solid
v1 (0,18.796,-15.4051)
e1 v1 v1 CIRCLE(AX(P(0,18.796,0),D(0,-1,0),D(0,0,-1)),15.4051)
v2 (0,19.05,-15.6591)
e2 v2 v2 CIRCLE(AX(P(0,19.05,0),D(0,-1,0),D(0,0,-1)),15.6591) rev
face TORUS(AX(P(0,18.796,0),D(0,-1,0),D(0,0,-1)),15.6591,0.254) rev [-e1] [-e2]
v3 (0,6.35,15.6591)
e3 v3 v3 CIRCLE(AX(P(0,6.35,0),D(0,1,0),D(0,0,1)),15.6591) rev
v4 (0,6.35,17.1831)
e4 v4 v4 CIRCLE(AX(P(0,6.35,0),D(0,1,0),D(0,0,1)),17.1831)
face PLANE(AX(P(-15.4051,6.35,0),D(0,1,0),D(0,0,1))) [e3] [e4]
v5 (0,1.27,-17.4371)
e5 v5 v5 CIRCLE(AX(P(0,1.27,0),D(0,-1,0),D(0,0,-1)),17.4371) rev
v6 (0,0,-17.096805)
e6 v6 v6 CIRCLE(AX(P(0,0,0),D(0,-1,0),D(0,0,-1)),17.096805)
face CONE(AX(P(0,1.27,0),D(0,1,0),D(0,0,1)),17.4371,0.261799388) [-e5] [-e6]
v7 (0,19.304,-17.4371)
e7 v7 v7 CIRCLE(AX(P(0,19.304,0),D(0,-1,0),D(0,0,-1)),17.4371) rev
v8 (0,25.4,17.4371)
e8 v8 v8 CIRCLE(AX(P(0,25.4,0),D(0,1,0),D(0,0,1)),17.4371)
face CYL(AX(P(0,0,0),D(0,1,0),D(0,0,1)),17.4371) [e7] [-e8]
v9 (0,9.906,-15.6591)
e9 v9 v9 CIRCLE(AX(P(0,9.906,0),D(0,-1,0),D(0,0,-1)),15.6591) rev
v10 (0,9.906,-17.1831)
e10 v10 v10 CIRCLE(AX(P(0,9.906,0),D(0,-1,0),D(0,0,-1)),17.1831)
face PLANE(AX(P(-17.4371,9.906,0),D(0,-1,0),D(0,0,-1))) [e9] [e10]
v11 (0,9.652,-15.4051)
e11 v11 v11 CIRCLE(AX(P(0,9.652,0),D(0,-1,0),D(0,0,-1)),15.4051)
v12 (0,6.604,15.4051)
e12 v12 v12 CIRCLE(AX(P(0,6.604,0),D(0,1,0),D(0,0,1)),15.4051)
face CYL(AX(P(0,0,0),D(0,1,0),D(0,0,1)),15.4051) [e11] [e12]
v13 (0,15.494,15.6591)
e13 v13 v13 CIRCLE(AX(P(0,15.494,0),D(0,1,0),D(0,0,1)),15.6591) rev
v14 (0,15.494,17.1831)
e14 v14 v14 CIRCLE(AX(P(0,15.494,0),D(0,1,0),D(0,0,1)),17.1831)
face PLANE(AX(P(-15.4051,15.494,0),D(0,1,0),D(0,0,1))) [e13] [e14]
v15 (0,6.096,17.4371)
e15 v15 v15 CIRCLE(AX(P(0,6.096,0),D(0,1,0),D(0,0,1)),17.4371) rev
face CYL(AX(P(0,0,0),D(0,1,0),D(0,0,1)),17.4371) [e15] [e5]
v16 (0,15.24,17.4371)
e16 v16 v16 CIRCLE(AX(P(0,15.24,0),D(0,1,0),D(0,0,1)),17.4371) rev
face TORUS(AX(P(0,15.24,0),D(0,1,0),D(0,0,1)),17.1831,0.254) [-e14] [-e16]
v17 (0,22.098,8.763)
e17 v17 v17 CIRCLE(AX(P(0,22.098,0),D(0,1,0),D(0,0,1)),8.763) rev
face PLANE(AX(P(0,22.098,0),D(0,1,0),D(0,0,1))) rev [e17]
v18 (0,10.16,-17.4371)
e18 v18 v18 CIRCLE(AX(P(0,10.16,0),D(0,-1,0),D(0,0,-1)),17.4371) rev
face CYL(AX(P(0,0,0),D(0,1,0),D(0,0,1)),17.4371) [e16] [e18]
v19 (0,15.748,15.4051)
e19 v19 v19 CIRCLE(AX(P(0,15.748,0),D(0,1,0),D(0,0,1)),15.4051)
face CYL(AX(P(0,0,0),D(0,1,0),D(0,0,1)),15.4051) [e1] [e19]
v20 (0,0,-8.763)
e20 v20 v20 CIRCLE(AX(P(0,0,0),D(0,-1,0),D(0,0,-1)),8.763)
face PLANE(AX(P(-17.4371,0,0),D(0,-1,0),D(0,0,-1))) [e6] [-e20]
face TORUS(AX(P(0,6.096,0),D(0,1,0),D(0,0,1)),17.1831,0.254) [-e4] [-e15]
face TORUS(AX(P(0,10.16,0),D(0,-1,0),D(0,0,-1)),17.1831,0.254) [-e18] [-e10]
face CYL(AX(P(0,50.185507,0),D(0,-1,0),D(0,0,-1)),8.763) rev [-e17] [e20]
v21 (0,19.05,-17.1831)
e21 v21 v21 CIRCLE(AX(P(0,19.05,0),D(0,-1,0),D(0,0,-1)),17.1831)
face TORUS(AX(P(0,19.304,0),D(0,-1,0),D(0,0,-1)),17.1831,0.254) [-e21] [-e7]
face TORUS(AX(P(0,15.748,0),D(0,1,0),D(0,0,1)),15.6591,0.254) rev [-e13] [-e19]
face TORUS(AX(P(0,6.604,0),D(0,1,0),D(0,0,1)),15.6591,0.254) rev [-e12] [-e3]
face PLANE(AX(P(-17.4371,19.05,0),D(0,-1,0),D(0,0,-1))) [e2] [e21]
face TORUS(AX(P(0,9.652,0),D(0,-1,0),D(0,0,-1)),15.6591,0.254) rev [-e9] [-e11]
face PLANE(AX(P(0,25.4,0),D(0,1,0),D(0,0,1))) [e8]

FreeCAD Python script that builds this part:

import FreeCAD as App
import Part
import Sketcher
Q = App.Units.Quantity


def edges_at(feature, points):
    """Names of the edges that pass closest to the given points."""
    edges = feature.Shape.Edges
    near = lambda p: min(range(len(edges)), key=lambda i: edges[i].distToShape(Part.Vertex(*p))[0])
    return sorted({f"Edge{near(p) + 1}" for p in points})


def add_polygon(sketch, points):
    """Adds a closed chain of lines whose ends are joined by coincident constraints."""
    first, n = sketch.GeometryCount, len(points)
    for a, b in zip(points, points[1:] + points[:1]):
        sketch.addGeometry(Part.LineSegment(App.Vector(*a, 0), App.Vector(*b, 0)), False)
    for i in range(n):
        sketch.addConstraint(Sketcher.Constraint("Coincident", first + i, 2, first + (i + 1) % n, 1))

doc = App.newDocument("Part")
body = doc.addObject("PartDesign::Body", "Body")

# Sketch on XY plane
sketch1 = doc.addObject("Sketcher::SketchObject", "Sketch")
body.addObject(sketch1)
sketch1.AttachmentSupport = (doc.XY_Plane, [""])
sketch1.MapMode = "FlatFace"
add_polygon(sketch1, [(0, 25.4), (-17.4, 25.4), (-17.4, 19.1), (-15.4, 19.1), (-15.4, 15.5), (-17.4, 15.5), (-17.4, 9.9), (-15.4, 9.9), (-15.4, 6.3), (-17.4, 6.3), (-17.4, 0), (0, 0)])  # lines 0-11
sketch1.addConstraint([
    Sketcher.Constraint("Horizontal", 0),
    Sketcher.Constraint("Vertical", 1),
    Sketcher.Constraint("Horizontal", 2),
    Sketcher.Constraint("Vertical", 3),
    Sketcher.Constraint("Horizontal", 4),
    Sketcher.Constraint("Vertical", 5),
    Sketcher.Constraint("Horizontal", 6),
    Sketcher.Constraint("Vertical", 7),
    Sketcher.Constraint("Horizontal", 8),
    Sketcher.Constraint("Vertical", 9),
    Sketcher.Constraint("Horizontal", 10),
    Sketcher.Constraint("Vertical", 11),
    Sketcher.Constraint("Coincident", 10, 2, -1, 1),
    Sketcher.Constraint("Vertical", 1, 2, 4, 2),
    Sketcher.Constraint("Vertical", 3, 2, 6, 2),
    Sketcher.Constraint("Vertical", 5, 2, 8, 2),
    Sketcher.Constraint("Equal", 3, 7),
    Sketcher.Constraint("Equal", 1, 9),
    Sketcher.Constraint("DistanceY", 11, 1, 11, 2, Q("1 in")),
    Sketcher.Constraint("DistanceX", 2, 1, 2, 2, Q("0.08 in")),
    Sketcher.Constraint("DistanceY", 1, 2, 1, 1, Q("0.25 in")),
    Sketcher.Constraint("DistanceY", 3, 2, 3, 1, Q("0.14 in")),
    Sketcher.Constraint("DistanceX", 0, 2, 0, 1, Q("0.6865 in")),
])
revolution = doc.addObject("PartDesign::Revolution", "Revolution")
body.addObject(revolution)
revolution.Profile = sketch1
revolution.ReferenceAxis = (sketch1, ["V_Axis"])
revolution.Angle = 360

# Sketch on XZ plane
sketch2 = doc.addObject("Sketcher::SketchObject", "Sketch001")
body.addObject(sketch2)
sketch2.AttachmentSupport = (doc.XZ_Plane, [""])
sketch2.MapMode = "FlatFace"
sketch2.addGeometry(Part.Circle(App.Vector(0, 0, 0), App.Vector(0, 0, 1), 9), False)
sketch2.addConstraint([
    Sketcher.Constraint("Coincident", 0, 3, -1, 1),
    Sketcher.Constraint("Diameter", 0, Q("0.69 in")),
])
pocket1 = doc.addObject("PartDesign::Pocket", "Pocket")
body.addObject(pocket1)
pocket1.Profile = sketch2
pocket1.Length = Q("0.87 in")
doc.recompute()

fillet = doc.addObject("PartDesign::Fillet", "Fillet")
body.addObject(fillet)
fillet.Base = (pocket1, edges_at(pocket1, [
    (0, 9.906, -15.405),
    (0, 9.906, -17.437),
    (0, 15.494, -17.437),
    (0, 15.494, -15.405),
    (0, 19.05, -15.405),
    (0, 19.05, -17.437),
    (0, 6.35, -17.437),
    (0, 6.35, -15.405),
]))
fillet.Radius = Q("0.01 in")
doc.recompute()

chamfer = doc.addObject("PartDesign::Chamfer", "Chamfer")
body.addObject(chamfer)
chamfer.Base = (fillet, edges_at(fillet, [(0, 0, -17.437)]))
chamfer.ChamferType = "Two distances"
chamfer.Size = Q("0.05 in")
chamfer.Size2 = 0.340295

doc.recompute()
